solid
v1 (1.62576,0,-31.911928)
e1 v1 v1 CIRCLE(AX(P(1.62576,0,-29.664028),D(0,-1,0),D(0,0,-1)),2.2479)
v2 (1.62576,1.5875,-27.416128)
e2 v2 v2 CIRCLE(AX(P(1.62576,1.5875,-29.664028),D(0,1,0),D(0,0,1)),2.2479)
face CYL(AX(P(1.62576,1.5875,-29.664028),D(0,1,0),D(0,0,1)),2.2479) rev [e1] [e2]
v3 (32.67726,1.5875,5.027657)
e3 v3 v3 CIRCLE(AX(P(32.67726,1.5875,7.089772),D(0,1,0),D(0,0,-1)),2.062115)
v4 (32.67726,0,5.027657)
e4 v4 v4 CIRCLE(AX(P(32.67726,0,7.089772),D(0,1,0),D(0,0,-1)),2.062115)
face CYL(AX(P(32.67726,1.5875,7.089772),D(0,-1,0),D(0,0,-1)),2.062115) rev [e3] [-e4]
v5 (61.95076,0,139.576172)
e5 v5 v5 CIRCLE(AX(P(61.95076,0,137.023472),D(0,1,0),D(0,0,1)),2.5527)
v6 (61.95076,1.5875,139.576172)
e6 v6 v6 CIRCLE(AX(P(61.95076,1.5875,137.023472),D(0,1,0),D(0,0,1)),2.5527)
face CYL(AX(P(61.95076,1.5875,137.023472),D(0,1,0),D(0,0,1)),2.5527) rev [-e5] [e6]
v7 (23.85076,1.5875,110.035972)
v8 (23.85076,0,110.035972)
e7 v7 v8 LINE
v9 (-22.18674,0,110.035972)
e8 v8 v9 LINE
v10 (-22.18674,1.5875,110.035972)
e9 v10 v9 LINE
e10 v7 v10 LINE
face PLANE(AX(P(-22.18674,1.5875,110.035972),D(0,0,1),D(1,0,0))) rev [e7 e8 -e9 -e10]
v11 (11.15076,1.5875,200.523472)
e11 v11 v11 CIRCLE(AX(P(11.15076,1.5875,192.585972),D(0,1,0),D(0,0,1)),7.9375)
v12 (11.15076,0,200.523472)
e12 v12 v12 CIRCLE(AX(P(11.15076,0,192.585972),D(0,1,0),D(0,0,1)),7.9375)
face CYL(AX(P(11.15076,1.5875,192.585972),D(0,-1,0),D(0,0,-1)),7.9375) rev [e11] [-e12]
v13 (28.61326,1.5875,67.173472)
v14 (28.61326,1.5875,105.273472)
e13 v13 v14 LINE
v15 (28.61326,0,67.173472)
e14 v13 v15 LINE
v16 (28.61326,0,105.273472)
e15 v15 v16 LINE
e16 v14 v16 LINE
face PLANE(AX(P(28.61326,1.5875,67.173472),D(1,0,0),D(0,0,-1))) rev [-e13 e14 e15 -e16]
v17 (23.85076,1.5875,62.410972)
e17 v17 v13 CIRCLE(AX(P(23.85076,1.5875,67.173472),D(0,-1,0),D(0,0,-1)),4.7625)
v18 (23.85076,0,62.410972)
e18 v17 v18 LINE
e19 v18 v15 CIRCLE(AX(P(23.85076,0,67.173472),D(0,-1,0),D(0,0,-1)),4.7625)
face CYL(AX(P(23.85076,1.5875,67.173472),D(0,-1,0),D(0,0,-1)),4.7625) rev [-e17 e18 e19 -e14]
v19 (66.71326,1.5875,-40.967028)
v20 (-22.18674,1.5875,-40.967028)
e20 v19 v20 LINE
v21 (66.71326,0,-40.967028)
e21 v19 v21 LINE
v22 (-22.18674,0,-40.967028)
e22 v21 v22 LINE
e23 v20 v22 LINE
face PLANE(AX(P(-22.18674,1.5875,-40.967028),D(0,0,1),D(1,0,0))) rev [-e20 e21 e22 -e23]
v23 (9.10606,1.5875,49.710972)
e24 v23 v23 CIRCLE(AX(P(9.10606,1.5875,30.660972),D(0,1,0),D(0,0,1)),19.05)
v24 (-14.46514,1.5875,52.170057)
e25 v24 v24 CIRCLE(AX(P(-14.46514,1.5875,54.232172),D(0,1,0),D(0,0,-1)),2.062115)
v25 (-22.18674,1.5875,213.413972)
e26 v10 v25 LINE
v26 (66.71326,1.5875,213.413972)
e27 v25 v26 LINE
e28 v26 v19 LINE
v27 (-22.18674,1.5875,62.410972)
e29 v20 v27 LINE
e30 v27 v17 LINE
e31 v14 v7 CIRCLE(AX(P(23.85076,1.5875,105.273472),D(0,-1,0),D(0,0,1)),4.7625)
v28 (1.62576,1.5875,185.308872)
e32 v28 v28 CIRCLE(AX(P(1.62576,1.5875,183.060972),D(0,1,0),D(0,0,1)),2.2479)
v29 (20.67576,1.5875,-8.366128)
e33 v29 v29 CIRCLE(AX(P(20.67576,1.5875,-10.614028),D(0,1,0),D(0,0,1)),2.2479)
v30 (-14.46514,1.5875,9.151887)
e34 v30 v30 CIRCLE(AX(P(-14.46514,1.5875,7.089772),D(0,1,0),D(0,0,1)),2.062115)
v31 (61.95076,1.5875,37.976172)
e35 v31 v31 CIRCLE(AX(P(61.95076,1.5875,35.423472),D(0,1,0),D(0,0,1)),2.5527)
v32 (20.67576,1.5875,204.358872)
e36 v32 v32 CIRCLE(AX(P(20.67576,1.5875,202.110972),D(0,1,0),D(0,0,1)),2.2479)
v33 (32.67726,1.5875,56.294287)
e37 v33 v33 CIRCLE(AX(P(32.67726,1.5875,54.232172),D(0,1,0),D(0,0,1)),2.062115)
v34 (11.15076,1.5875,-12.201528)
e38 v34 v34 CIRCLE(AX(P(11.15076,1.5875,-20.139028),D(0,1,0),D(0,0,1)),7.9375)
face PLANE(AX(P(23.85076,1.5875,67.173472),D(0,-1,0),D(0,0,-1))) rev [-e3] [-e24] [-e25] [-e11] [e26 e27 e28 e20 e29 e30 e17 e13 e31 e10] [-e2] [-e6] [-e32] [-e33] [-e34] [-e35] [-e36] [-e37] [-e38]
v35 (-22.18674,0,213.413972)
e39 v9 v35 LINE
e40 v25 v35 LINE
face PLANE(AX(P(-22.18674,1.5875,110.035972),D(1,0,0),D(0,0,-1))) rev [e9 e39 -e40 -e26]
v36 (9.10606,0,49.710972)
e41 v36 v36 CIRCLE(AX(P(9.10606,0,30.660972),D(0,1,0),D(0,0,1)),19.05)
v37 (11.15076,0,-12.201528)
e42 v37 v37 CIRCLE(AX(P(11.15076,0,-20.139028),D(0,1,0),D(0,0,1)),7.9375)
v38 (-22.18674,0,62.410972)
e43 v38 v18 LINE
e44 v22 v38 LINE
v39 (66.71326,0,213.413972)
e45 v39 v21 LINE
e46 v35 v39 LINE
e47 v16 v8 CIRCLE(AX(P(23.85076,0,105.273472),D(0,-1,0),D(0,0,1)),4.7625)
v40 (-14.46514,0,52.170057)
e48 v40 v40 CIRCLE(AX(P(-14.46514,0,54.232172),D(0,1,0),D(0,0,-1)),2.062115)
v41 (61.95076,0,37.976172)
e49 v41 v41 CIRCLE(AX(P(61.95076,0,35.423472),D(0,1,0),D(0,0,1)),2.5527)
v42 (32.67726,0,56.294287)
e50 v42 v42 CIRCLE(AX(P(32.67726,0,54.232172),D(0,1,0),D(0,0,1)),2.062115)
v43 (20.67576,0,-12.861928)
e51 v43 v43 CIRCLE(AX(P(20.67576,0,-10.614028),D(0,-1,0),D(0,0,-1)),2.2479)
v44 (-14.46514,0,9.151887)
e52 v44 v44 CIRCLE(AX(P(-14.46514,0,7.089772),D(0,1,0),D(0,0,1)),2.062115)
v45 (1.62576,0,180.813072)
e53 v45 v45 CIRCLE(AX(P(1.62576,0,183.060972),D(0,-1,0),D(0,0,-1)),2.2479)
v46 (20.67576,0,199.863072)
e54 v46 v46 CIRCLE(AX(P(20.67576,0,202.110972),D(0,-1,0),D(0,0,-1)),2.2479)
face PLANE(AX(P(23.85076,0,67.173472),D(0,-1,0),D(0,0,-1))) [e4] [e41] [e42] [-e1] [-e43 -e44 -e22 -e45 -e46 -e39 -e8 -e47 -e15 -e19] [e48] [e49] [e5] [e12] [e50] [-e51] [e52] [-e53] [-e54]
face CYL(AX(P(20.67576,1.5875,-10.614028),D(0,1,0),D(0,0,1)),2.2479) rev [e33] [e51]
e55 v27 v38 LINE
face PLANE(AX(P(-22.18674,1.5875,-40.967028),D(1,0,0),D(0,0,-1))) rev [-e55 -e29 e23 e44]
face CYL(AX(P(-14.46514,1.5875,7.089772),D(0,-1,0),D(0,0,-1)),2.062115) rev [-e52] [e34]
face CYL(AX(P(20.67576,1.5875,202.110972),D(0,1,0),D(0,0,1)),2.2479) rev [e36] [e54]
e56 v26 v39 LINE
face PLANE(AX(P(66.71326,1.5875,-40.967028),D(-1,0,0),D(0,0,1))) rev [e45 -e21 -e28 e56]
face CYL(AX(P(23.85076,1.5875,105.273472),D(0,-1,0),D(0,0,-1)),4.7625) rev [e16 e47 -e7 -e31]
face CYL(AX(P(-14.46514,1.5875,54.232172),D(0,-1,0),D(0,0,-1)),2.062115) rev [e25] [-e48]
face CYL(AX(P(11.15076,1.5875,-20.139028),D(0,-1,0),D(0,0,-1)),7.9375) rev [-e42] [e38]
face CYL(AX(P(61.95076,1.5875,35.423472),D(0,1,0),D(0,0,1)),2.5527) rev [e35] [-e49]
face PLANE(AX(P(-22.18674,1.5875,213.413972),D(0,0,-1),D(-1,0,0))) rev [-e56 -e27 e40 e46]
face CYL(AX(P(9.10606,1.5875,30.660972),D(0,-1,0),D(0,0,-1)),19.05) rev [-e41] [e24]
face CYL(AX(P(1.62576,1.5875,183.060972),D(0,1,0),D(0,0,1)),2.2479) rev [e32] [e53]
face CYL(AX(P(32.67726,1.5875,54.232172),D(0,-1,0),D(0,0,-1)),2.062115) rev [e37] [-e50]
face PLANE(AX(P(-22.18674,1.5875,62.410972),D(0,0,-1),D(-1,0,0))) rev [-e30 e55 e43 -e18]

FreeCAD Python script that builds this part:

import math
import FreeCAD as App
import Part
import Sketcher

V = App.Vector
Q = App.Units.Quantity

doc = App.newDocument("Part")
body = doc.addObject("PartDesign::Body", "Body")

sketch1 = body.newObject("Sketcher::SketchObject", "Sketch")
sketch1.AttachmentSupport = (doc.getObject("XZ_Plane"), [""])
sketch1.MapMode = "FlatFace"
sketch1.addGeometry([
    Part.LineSegment(V(-22.18674, 110.035972, 0), V(-22.18674, 213.413972, 0)),
    Part.LineSegment(V(-22.18674, 213.413972, 0), V(66.71326, 213.413972, 0)),
    Part.LineSegment(V(66.71326, 213.413972, 0), V(66.71326, -40.967028, 0)),
    Part.LineSegment(V(66.71326, -40.967028, 0), V(-22.18674, -40.967028, 0)),
    Part.LineSegment(V(-22.18674, -40.967028, 0), V(-22.18674, 62.410972, 0)),
    Part.LineSegment(V(-22.18674, 62.410972, 0), V(23.85076, 62.410972, 0)),
    Part.ArcOfCircle(Part.Circle(V(23.85076, 67.173472, 0), V(0, 0, 1), 4.7625), math.radians(-90), math.radians(0)),
    Part.LineSegment(V(28.61326, 67.173472, 0), V(28.61326, 105.273472, 0)),
    Part.ArcOfCircle(Part.Circle(V(23.85076, 105.273472, 0), V(0, 0, 1), 4.7625), math.radians(0), math.radians(90)),
    Part.LineSegment(V(23.85076, 110.035972, 0), V(-22.18674, 110.035972, 0)),
    Part.Circle(V(11.15076, 192.585972, 0), V(0, 0, 1), 7.9375),
    Part.Circle(V(-14.46514, 54.232172, 0), V(0, 0, 1), 2.062115),
    Part.Circle(V(-14.46514, 7.089772, 0), V(0, 0, 1), 2.062115),
    Part.Circle(V(9.10606, 30.660972, 0), V(0, 0, 1), 19.05),
    Part.Circle(V(32.67726, 54.232172, 0), V(0, 0, 1), 2.062115),
    Part.Circle(V(11.15076, -20.139028, 0), V(0, 0, 1), 7.9375),
    Part.Circle(V(32.67726, 7.089772, 0), V(0, 0, 1), 2.062115),
], False)
sketch1.addConstraint([
    Sketcher.Constraint("Coincident", 0, 2, 1, 1),
    Sketcher.Constraint("Coincident", 1, 2, 2, 1),
    Sketcher.Constraint("Coincident", 2, 2, 3, 1),
    Sketcher.Constraint("Coincident", 3, 2, 4, 1),
    Sketcher.Constraint("Coincident", 4, 2, 5, 1),
    Sketcher.Constraint("Tangent", 5, 2, 6, 1),
    Sketcher.Constraint("Tangent", 6, 2, 7, 1),
    Sketcher.Constraint("Tangent", 7, 2, 8, 1),
    Sketcher.Constraint("Tangent", 8, 2, 9, 1),
    Sketcher.Constraint("Coincident", 9, 2, 0, 1),
    Sketcher.Constraint("Vertical", 0),
    Sketcher.Constraint("Horizontal", 1),
    Sketcher.Constraint("Vertical", 2),
    Sketcher.Constraint("Horizontal", 3),
    Sketcher.Constraint("Vertical", 4),
    Sketcher.Constraint("Horizontal", 5),
    Sketcher.Constraint("Vertical", 7),
    Sketcher.Constraint("Horizontal", 9),
    Sketcher.Constraint("Equal", 6, 8),
    Sketcher.Constraint("Equal", 11, 12),
    Sketcher.Constraint("Equal", 12, 14),
    Sketcher.Constraint("Equal", 10, 15),
    Sketcher.Constraint("Equal", 14, 16),
    Sketcher.Constraint("Horizontal", 11, 3, 14, 3),
    Sketcher.Constraint("Horizontal", 12, 3, 16, 3),
    Sketcher.Constraint("Vertical", 11, 3, 12, 3),
    Sketcher.Constraint("Vertical", 10, 3, 15, 3),
    Sketcher.Constraint("Vertical", 14, 3, 16, 3),
    Sketcher.Constraint("Vertical", 0, 2, 3, 2),
    Sketcher.Constraint("Equal", 0, 4),
    Sketcher.Constraint("Diameter", 13, Q("1.5 in")),
    Sketcher.Constraint("Diameter", 10, Q("0.625 in")),
    Sketcher.Constraint("DistanceX", 1, 1, 1, 2, Q("3.5 in")),
    Sketcher.Constraint("DistanceY", 7, 1, 7, 2, Q("1.5 in")),
    Sketcher.Constraint("Radius", 6, Q("0.1875 in")),
    Sketcher.Constraint("DistanceY", 15, 3, 13, 3, Q("2 in")),
    Sketcher.Constraint("DistanceX", 9, 2, 7, 2, Q("2 in")),
    Sketcher.Constraint("DistanceY", 0, 1, 0, 2, Q("4.07 in")),
    Sketcher.Constraint("DistanceX", 10, 3, 8, 3, Q("0.5 in")),
    Sketcher.Constraint("DistanceY", 10, 3, 0, 2, Q("0.82 in")),
    Sketcher.Constraint("DistanceX", 0, 2, 14, 3, Q("2.16 in")),
    Sketcher.Constraint("DistanceY", 2, 2, 15, 3, Q("0.82 in")),
    Sketcher.Constraint("Diameter", 11, 4.124229),
    Sketcher.Constraint("DistanceY", 11, 3, 10, 3, Q("5.447 in")),
    Sketcher.Constraint("DistanceY", 12, 3, 11, 3, Q("1.856 in")),
    Sketcher.Constraint("DistanceX", 11, 3, 13, 3, Q("0.928 in")),
    Sketcher.Constraint("DistanceX", 13, 3, 14, 3, Q("0.928 in")),
    Sketcher.Constraint("DistanceX", -1, 1, 6, 3, 23.85076),
    Sketcher.Constraint("DistanceY", -1, 1, 6, 3, 67.173472),
])
pad1 = body.newObject("PartDesign::Pad", "Pad")
pad1.Profile = sketch1
pad1.Length = Q("0.0625 in")
pad1.Reversed = True

sketch2 = body.newObject("Sketcher::SketchObject", "Sketch001")
sketch2.AttachmentSupport = (doc.getObject("XZ_Plane"), [""])
sketch2.MapMode = "FlatFace"
sketch2.AttachmentOffset = App.Placement(V(0, 0, -0.0625 * 25.4), App.Rotation())
sketch2.addGeometry([
    Part.Circle(V(61.95076, 137.023472, 0), V(0, 0, 1), 2.5527),
    Part.Circle(V(61.95076, 35.423472, 0), V(0, 0, 1), 2.5527),
], False)
sketch2.addConstraint([
    Sketcher.Constraint("Equal", 0, 1),
    Sketcher.Constraint("Vertical", 0, 3, 1, 3),
    Sketcher.Constraint("Diameter", 0, Q("0.201 in")),
    Sketcher.Constraint("DistanceY", 1, 3, 0, 3, Q("4 in")),
    Sketcher.Constraint("DistanceX", -1, 1, 0, 3, 61.95076),
    Sketcher.Constraint("DistanceY", -1, 1, 0, 3, 137.023472),
])
doc.recompute()
hole = body.newObject("PartDesign::Hole", "Hole")
hole.Profile = sketch2
hole.ThreadType = "None"
hole.Diameter = Q("0.201 in")
hole.DepthType = "ThroughAll"
hole.Reversed = True

sketch3 = body.newObject("Sketcher::SketchObject", "Sketch002")
sketch3.AttachmentSupport = (doc.getObject("XZ_Plane"), [""])
sketch3.MapMode = "FlatFace"
sketch3.AttachmentOffset = App.Placement(V(0, 0, -0.0625 * 25.4), App.Rotation())
sketch3.addGeometry([
    Part.Circle(V(1.62576, -29.664028, 0), V(0, 0, 1), 2.2479),
    Part.Circle(V(20.67576, -10.614028, 0), V(0, 0, 1), 2.2479),
    Part.Circle(V(1.62576, 183.060972, 0), V(0, 0, 1), 2.2479),
    Part.Circle(V(20.67576, 202.110972, 0), V(0, 0, 1), 2.2479),
], False)
sketch3.addConstraint([
    Sketcher.Constraint("Equal", 0, 1),
    Sketcher.Constraint("Equal", 1, 2),
    Sketcher.Constraint("Equal", 2, 3),
    Sketcher.Constraint("Vertical", 0, 3, 2, 3),
    Sketcher.Constraint("Vertical", 1, 3, 3, 3),
    Sketcher.Constraint("Diameter", 0, Q("0.177 in")),
    Sketcher.Constraint("DistanceX", 0, 3, 1, 3, Q("0.75 in")),
    Sketcher.Constraint("DistanceY", 0, 3, 1, 3, Q("0.75 in")),
    Sketcher.Constraint("DistanceY", 2, 3, 3, 3, Q("0.75 in")),
    Sketcher.Constraint("DistanceY", 1, 3, 2, 3, Q("7.625 in")),
    Sketcher.Constraint("DistanceX", -1, 1, 0, 3, 1.62576),
    Sketcher.Constraint("DistanceY", 0, 3, -1, 1, 29.664028),
])
doc.recompute()
hole2 = body.newObject("PartDesign::Hole", "Hole001")
hole2.Profile = sketch3
hole2.ThreadType = "None"
hole2.Diameter = Q("0.177 in")
hole2.DepthType = "Dimension"
hole2.Depth = Q("0.25 in")
hole2.DrillPoint = "Angled"
hole2.DrillPointAngle = 118
hole2.Reversed = True

doc.recompute()
